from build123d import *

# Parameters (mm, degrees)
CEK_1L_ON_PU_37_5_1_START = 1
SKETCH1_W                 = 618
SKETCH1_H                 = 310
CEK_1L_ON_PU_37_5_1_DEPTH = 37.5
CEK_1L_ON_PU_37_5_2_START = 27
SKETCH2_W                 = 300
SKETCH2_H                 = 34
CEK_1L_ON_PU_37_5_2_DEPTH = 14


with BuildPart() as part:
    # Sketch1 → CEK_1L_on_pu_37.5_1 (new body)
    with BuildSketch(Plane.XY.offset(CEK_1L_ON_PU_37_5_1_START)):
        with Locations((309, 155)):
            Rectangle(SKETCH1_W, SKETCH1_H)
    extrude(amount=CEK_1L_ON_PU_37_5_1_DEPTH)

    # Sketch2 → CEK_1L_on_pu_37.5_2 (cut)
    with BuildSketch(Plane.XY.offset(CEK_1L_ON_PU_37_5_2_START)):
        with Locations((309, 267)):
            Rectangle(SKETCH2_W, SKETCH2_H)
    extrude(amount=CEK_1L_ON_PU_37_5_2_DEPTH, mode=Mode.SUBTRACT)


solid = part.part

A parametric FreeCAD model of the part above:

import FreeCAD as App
import Part
import Sketcher
from FreeCAD import Vector
Q = App.Units.Quantity

doc = App.newDocument("Part")
params = doc.addObject("Spreadsheet::Sheet", "Params")
for row, (alias, value) in enumerate([
    ("sketch1_width", "618 mm"),
    ("sketch1_height", "310 mm"),
    ("pad1_length", "37.5 mm"),
    ("sketch2_width", "300 mm"),
    ("sketch2_height", "34 mm"),
    ("pocket1_length", "14 mm"),
], start=1):
    params.set(f"A{row}", alias)
    params.set(f"B{row}", "=" + value)
    params.setAlias(f"B{row}", alias)

body = doc.addObject("PartDesign::Body", "Body")

sketch1 = doc.addObject("Sketcher::SketchObject", "Sketch")
body.addObject(sketch1)
sketch1.AttachmentSupport = (doc.XY_Plane, [""])
sketch1.MapMode = "FlatFace"
sketch1.AttachmentOffset = App.Placement(Vector(0, 0, 1), App.Rotation())
sketch1.addGeometry([
    Part.LineSegment(Vector(0, 310, 0), Vector(0, 0, 0)),
    Part.LineSegment(Vector(0, 0, 0), Vector(618, 0, 0)),
    Part.LineSegment(Vector(618, 0, 0), Vector(618, 310, 0)),
    Part.LineSegment(Vector(618, 310, 0), Vector(0, 310, 0)),
], False)
sketch1.addConstraint([
    Sketcher.Constraint("Coincident", 0, 2, 1, 1),
    Sketcher.Constraint("Coincident", 1, 2, 2, 1),
    Sketcher.Constraint("Coincident", 2, 2, 3, 1),
    Sketcher.Constraint("Coincident", 3, 2, 0, 1),
    Sketcher.Constraint("Vertical", 0),
    Sketcher.Constraint("Horizontal", 1),
    Sketcher.Constraint("Vertical", 2),
    Sketcher.Constraint("Horizontal", 3),
    Sketcher.Constraint("Coincident", 0, 2, -1, 1),
    Sketcher.Constraint("DistanceX", 1, 1, 1, 2, Q("618 mm")),
    Sketcher.Constraint("DistanceY", 0, 2, 0, 1, Q("310 mm")),
])
sketch1.setExpression("Constraints[9]", "Params.sketch1_width")
sketch1.setExpression("Constraints[10]", "Params.sketch1_height")
pad1 = doc.addObject("PartDesign::Pad", "Pad")
body.addObject(pad1)
pad1.Profile = sketch1
pad1.setExpression("Length", "Params.pad1_length")

sketch2 = doc.addObject("Sketcher::SketchObject", "Sketch001")
body.addObject(sketch2)
sketch2.AttachmentSupport = (doc.XY_Plane, [""])
sketch2.MapMode = "FlatFace"
sketch2.AttachmentOffset = App.Placement(Vector(0, 0, 27), App.Rotation())
sketch2.addGeometry([
    Part.LineSegment(Vector(159, 284, 0), Vector(159, 250, 0)),
    Part.LineSegment(Vector(159, 250, 0), Vector(459, 250, 0)),
    Part.LineSegment(Vector(459, 250, 0), Vector(459, 284, 0)),
    Part.LineSegment(Vector(459, 284, 0), Vector(159, 284, 0)),
], False)
sketch2.addConstraint([
    Sketcher.Constraint("Coincident", 0, 2, 1, 1),
    Sketcher.Constraint("Coincident", 1, 2, 2, 1),
    Sketcher.Constraint("Coincident", 2, 2, 3, 1),
    Sketcher.Constraint("Coincident", 3, 2, 0, 1),
    Sketcher.Constraint("Vertical", 0),
    Sketcher.Constraint("Horizontal", 1),
    Sketcher.Constraint("Vertical", 2),
    Sketcher.Constraint("Horizontal", 3),
    Sketcher.Constraint("DistanceX", 1, 1, 1, 2, Q("300 mm")),
    Sketcher.Constraint("DistanceY", 0, 2, 0, 1, Q("34 mm")),
    Sketcher.Constraint("DistanceX", -1, 1, 0, 2, Q("159 mm")),
    Sketcher.Constraint("DistanceY", -1, 1, 0, 2, Q("250 mm")),
])
sketch2.setExpression("Constraints[8]", "Params.sketch2_width")
sketch2.setExpression("Constraints[9]", "Params.sketch2_height")
pocket1 = doc.addObject("PartDesign::Pocket", "Pocket")
body.addObject(pocket1)
pocket1.Profile = sketch2
pocket1.setExpression("Length", "Params.pocket1_length")
pocket1.Reversed = True

doc.recompute()
